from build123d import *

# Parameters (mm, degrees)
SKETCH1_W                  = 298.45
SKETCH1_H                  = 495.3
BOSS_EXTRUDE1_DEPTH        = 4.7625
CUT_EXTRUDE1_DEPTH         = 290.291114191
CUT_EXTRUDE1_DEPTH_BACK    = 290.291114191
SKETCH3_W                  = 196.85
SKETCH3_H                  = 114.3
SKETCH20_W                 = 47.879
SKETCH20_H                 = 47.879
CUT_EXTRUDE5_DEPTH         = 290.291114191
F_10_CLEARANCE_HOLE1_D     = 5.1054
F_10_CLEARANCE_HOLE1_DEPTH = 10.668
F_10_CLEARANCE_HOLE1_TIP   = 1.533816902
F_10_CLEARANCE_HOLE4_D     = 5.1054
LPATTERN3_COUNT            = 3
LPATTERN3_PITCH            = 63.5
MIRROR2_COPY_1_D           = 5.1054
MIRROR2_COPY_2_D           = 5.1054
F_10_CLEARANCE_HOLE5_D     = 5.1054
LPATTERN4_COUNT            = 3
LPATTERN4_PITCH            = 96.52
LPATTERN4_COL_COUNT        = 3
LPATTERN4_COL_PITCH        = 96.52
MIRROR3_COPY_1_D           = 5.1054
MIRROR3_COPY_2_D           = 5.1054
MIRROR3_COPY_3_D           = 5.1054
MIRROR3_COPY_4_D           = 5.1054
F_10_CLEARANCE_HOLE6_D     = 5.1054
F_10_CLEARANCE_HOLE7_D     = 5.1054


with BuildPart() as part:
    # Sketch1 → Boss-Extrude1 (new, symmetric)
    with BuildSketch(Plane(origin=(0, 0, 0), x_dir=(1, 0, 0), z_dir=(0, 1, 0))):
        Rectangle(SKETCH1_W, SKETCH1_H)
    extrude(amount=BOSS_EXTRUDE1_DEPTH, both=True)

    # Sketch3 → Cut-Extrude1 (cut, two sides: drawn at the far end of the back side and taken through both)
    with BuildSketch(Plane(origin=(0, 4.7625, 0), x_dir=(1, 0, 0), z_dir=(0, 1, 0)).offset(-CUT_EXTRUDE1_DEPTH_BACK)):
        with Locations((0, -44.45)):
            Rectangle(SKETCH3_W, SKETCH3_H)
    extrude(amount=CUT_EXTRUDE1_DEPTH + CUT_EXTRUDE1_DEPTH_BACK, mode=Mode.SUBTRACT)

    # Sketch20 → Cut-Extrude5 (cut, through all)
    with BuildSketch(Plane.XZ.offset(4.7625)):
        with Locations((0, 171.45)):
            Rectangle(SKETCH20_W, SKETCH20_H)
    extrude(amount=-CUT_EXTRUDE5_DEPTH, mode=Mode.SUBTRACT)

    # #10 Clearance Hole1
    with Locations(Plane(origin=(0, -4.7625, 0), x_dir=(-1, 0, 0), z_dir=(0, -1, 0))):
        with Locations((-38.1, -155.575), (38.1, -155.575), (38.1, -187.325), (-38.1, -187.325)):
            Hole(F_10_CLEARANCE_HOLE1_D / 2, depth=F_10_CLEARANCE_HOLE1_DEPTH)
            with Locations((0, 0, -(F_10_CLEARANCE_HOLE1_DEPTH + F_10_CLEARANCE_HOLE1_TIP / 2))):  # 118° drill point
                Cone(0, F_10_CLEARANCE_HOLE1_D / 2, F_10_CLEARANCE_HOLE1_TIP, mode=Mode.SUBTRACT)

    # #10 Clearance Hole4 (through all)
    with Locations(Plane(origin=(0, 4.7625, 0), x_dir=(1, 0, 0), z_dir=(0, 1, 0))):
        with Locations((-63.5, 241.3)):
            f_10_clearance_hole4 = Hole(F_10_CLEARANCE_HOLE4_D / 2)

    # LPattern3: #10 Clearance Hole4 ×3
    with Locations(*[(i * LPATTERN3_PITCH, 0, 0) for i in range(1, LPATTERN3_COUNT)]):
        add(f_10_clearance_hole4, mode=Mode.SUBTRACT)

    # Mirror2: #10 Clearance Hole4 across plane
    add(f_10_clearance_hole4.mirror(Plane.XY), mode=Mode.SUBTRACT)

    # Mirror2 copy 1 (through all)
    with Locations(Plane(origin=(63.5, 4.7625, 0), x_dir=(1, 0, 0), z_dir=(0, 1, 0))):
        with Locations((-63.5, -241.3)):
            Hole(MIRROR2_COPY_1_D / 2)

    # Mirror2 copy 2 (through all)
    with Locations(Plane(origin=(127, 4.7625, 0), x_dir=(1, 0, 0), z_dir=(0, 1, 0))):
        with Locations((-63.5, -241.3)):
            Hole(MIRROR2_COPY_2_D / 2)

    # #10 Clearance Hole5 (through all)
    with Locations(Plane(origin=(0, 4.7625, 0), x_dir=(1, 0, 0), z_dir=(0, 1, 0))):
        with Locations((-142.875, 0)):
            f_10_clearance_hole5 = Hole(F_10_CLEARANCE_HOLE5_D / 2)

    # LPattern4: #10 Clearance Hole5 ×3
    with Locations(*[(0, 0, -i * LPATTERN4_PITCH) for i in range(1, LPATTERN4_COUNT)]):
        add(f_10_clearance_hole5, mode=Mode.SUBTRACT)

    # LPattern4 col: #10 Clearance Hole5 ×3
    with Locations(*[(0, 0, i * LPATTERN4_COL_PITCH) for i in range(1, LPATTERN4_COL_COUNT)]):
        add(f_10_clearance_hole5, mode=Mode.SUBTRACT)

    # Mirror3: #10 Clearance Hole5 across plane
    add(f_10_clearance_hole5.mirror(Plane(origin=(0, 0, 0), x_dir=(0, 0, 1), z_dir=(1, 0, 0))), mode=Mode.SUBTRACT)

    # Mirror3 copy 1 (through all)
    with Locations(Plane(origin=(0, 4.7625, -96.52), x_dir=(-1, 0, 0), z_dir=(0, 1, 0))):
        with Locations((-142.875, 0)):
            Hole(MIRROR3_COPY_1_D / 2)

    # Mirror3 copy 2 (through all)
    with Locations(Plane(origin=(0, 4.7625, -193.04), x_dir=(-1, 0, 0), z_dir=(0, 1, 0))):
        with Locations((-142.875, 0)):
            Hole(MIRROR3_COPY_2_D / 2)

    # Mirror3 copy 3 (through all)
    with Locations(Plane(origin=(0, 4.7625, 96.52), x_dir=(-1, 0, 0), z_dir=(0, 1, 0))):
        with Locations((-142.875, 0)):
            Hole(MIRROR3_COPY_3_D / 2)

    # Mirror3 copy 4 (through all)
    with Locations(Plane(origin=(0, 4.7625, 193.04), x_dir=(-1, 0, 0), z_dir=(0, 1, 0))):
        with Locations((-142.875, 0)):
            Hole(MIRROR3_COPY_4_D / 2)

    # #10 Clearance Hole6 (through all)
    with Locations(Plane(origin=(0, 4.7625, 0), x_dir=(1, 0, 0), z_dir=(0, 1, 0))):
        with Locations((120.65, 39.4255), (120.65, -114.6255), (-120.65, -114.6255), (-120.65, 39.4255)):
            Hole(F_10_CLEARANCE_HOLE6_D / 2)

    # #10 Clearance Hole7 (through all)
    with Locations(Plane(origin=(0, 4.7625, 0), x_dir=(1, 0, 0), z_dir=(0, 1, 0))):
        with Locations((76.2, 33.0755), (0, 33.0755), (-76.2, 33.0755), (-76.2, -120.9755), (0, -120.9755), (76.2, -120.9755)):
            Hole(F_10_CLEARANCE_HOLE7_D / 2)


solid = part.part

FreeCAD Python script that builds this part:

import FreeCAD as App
import Part
import Sketcher
from FreeCAD import Vector
Q = App.Units.Quantity


def add_polygon(sketch, points):
    """Adds a closed chain of lines whose ends are joined by coincident constraints."""
    first, n = sketch.GeometryCount, len(points)
    for a, b in zip(points, points[1:] + points[:1]):
        sketch.addGeometry(Part.LineSegment(App.Vector(*a, 0), App.Vector(*b, 0)), False)
    for i in range(n):
        sketch.addConstraint(Sketcher.Constraint("Coincident", first + i, 2, first + (i + 1) % n, 1))

doc = App.newDocument("Part")
body = doc.addObject("PartDesign::Body", "Body")

sketch1 = body.newObject("Sketcher::SketchObject", "Sketch")
sketch1.AttachmentSupport = (doc.getObject("XZ_Plane"), [""])
sketch1.MapMode = "FlatFace"
add_polygon(sketch1, [(-149, -248), (-149, 248), (149, 248), (149, -248)])
sketch1.addConstraint([
    Sketcher.Constraint("Vertical", 0),
    Sketcher.Constraint("Horizontal", 1),
    Sketcher.Constraint("Vertical", 2),
    Sketcher.Constraint("Horizontal", 3),
    Sketcher.Constraint("Symmetric", 0, 2, 2, 2, -1, 1),
    Sketcher.Constraint("DistanceY", 0, 1, 0, 2, Q("19.5 in")),
    Sketcher.Constraint("DistanceX", 1, 1, 1, 2, Q("11.75 in")),
])
pad1 = body.newObject("PartDesign::Pad", "Pad")
pad1.Profile = sketch1
pad1.Length = Q("0.375 in")
pad1.Midplane = True

sketch2 = body.newObject("Sketcher::SketchObject", "Sketch001")
sketch2.AttachmentSupport = (doc.getObject("XZ_Plane"), [""])
sketch2.MapMode = "FlatFace"
sketch2.AttachmentOffset = App.Placement(Vector(0, 0, -0.1875 * 25.4), App.Rotation())
add_polygon(sketch2, [(-98, -13), (-98, 102), (98, 102), (98, -13)])
sketch2.addConstraint([
    Sketcher.Constraint("Vertical", 0),
    Sketcher.Constraint("Horizontal", 1),
    Sketcher.Constraint("Vertical", 2),
    Sketcher.Constraint("Horizontal", 3),
    Sketcher.Constraint("DistanceY", 0, 1, 0, 2, Q("4.5 in")),
    Sketcher.Constraint("DistanceY", -1, 1, 0, 2, Q("4 in")),
    Sketcher.Constraint("DistanceX", 1, 1, 1, 2, Q("7.75 in")),
    Sketcher.Constraint("DistanceX", 0, 2, -1, 1, Q("3.875 in")),
])
pocket1 = body.newObject("PartDesign::Pocket", "Pocket")
pocket1.Profile = sketch2
pocket1.Type = "ThroughAll"
pocket1.Midplane = True

sketch3 = body.newObject("Sketcher::SketchObject", "Sketch002")
sketch3.AttachmentSupport = (doc.getObject("XZ_Plane"), [""])
sketch3.MapMode = "FlatFace"
sketch3.AttachmentOffset = App.Placement(Vector(0, 0, 0.1875 * 25.4), App.Rotation())
add_polygon(sketch3, [(-24, 195), (-24, 148), (24, 148), (24, 195)])
sketch3.addConstraint([
    Sketcher.Constraint("Vertical", 0),
    Sketcher.Constraint("Horizontal", 1),
    Sketcher.Constraint("Vertical", 2),
    Sketcher.Constraint("Horizontal", 3),
    Sketcher.Constraint("Equal", 3, 0),
    Sketcher.Constraint("DistanceX", 1, 1, 1, 2, Q("1.885 in")),
    Sketcher.Constraint("DistanceX", 0, 2, -1, 1, Q("0.9425 in")),
    Sketcher.Constraint("DistanceY", -1, 1, 0, 2, Q("5.8075 in")),
])
pocket2 = body.newObject("PartDesign::Pocket", "Pocket001")
pocket2.Profile = sketch3
pocket2.Type = "ThroughAll"

sketch4 = body.newObject("Sketcher::SketchObject", "Sketch003")
sketch4.AttachmentSupport = (doc.getObject("XZ_Plane"), [""])
sketch4.MapMode = "FlatFace"
sketch4.AttachmentOffset = App.Placement(Vector(0, 0, 0.1875 * 25.4), App.Rotation())
sketch4.addGeometry([
    Part.Circle(Vector(38.1, 155.6, 0), Vector(0, 0, 1), 2.6),
    Part.Circle(Vector(-38.1, 155.6, 0), Vector(0, 0, 1), 2.6),
    Part.Circle(Vector(-38.1, 187.3, 0), Vector(0, 0, 1), 2.6),
    Part.Circle(Vector(38.1, 187.3, 0), Vector(0, 0, 1), 2.6),
], False)
sketch4.addConstraint([
    Sketcher.Constraint("Equal", 0, 1),
    Sketcher.Constraint("Equal", 1, 2),
    Sketcher.Constraint("Equal", 2, 3),
    Sketcher.Constraint("Symmetric", 0, 3, 1, 3, -2),
    Sketcher.Constraint("Symmetric", 2, 3, 3, 3, -2),
    Sketcher.Constraint("Vertical", 1, 3, 2, 3),
    Sketcher.Constraint("Diameter", 0, Q("0.201 in")),
    Sketcher.Constraint("DistanceX", 1, 3, 0, 3, Q("3 in")),
    Sketcher.Constraint("DistanceY", 1, 3, 2, 3, Q("1.25 in")),
    Sketcher.Constraint("DistanceY", -1, 1, 0, 3, Q("6.125 in")),
])
doc.recompute()
hole = body.newObject("PartDesign::Hole", "Hole")
hole.Profile = sketch4
hole.ThreadType = "None"
hole.Diameter = Q("0.201 in")
hole.DepthType = "Dimension"
hole.Depth = Q("0.42 in")
hole.DrillPoint = "Angled"
hole.DrillPointAngle = 118

sketch5 = body.newObject("Sketcher::SketchObject", "Sketch004")
sketch5.AttachmentSupport = (doc.getObject("XZ_Plane"), [""])
sketch5.MapMode = "FlatFace"
sketch5.AttachmentOffset = App.Placement(Vector(0, 0, -0.1875 * 25.4), App.Rotation())
sketch5.addGeometry(Part.Circle(Vector(-63.5, -241.3, 0), Vector(0, 0, 1), 2.6), False)
sketch5.addConstraint([
    Sketcher.Constraint("Diameter", 0, Q("0.201 in")),
    Sketcher.Constraint("DistanceX", 0, 3, -1, 1, Q("2.5 in")),
    Sketcher.Constraint("DistanceY", 0, 3, -1, 1, Q("9.5 in")),
])
doc.recompute()
hole2 = body.newObject("PartDesign::Hole", "Hole001")
hole2.Profile = sketch5
hole2.ThreadType = "None"
hole2.Diameter = Q("0.201 in")
hole2.DepthType = "ThroughAll"
hole2.Reversed = True
doc.recompute()

linearpattern = body.newObject("PartDesign::LinearPattern", "LinearPattern")
linearpattern.Originals = [hole2]
linearpattern.Direction = (doc.getObject("X_Axis"), [""])
linearpattern.Mode = "offset"
linearpattern.Offset = Q("2.5 in")
linearpattern.Occurrences = 3
body.Tip = linearpattern
doc.recompute()

mirrored = body.newObject("PartDesign::Mirrored", "Mirrored")
mirrored.Originals = [hole2]
mirrored.MirrorPlane = (doc.getObject("XY_Plane"), [""])
body.Tip = mirrored

sketch6 = body.newObject("Sketcher::SketchObject", "Sketch005")
sketch6.AttachmentSupport = (doc.getObject("XZ_Plane"), [""])
sketch6.MapMode = "FlatFace"
sketch6.AttachmentOffset = App.Placement(Vector(0, 0, -0.1875 * 25.4), App.Rotation())
sketch6.addGeometry(Part.Circle(Vector(0, 241.3, 0), Vector(0, 0, 1), 2.6), False)
sketch6.addConstraint([
    Sketcher.Constraint("PointOnObject", 0, 3, -2),
    Sketcher.Constraint("Diameter", 0, Q("0.201 in")),
    Sketcher.Constraint("DistanceY", -1, 1, 0, 3, Q("9.5 in")),
])
doc.recompute()
hole3 = body.newObject("PartDesign::Hole", "Hole002")
hole3.Profile = sketch6
hole3.ThreadType = "None"
hole3.Diameter = Q("0.201 in")
hole3.DepthType = "ThroughAll"
hole3.Reversed = True

sketch7 = body.newObject("Sketcher::SketchObject", "Sketch006")
sketch7.AttachmentSupport = (doc.getObject("XZ_Plane"), [""])
sketch7.MapMode = "FlatFace"
sketch7.AttachmentOffset = App.Placement(Vector(0, 0, -0.1875 * 25.4), App.Rotation())
sketch7.addGeometry(Part.Circle(Vector(63.5, 241.3, 0), Vector(0, 0, 1), 2.6), False)
sketch7.addConstraint([
    Sketcher.Constraint("Diameter", 0, Q("0.201 in")),
    Sketcher.Constraint("DistanceX", -1, 1, 0, 3, Q("2.5 in")),
    Sketcher.Constraint("DistanceY", -1, 1, 0, 3, Q("9.5 in")),
])
doc.recompute()
hole4 = body.newObject("PartDesign::Hole", "Hole003")
hole4.Profile = sketch7
hole4.ThreadType = "None"
hole4.Diameter = Q("0.201 in")
hole4.DepthType = "ThroughAll"
hole4.Reversed = True

sketch8 = body.newObject("Sketcher::SketchObject", "Sketch007")
sketch8.AttachmentSupport = (doc.getObject("XZ_Plane"), [""])
sketch8.MapMode = "FlatFace"
sketch8.AttachmentOffset = App.Placement(Vector(0, 0, -0.1875 * 25.4), App.Rotation())
sketch8.addGeometry(Part.Circle(Vector(-142.9, 0, 0), Vector(0, 0, 1), 2.6), False)
sketch8.addConstraint([
    Sketcher.Constraint("PointOnObject", 0, 3, -1),
    Sketcher.Constraint("Diameter", 0, Q("0.201 in")),
    Sketcher.Constraint("DistanceX", 0, 3, -1, 1, Q("5.625 in")),
])
doc.recompute()
hole5 = body.newObject("PartDesign::Hole", "Hole004")
hole5.Profile = sketch8
hole5.ThreadType = "None"
hole5.Diameter = Q("0.201 in")
hole5.DepthType = "ThroughAll"
hole5.Reversed = True
doc.recompute()

linearpattern2 = body.newObject("PartDesign::LinearPattern", "LinearPattern001")
linearpattern2.Originals = [hole5]
linearpattern2.Direction = (doc.getObject("Z_Axis"), [""])
linearpattern2.Mode = "offset"
linearpattern2.Offset = Q("3.8 in")
linearpattern2.Occurrences = 3
linearpattern2.Reversed = True
body.Tip = linearpattern2
doc.recompute()

linearpattern3 = body.newObject("PartDesign::LinearPattern", "LinearPattern002")
linearpattern3.Originals = [hole5]
linearpattern3.Direction = (doc.getObject("Z_Axis"), [""])
linearpattern3.Mode = "offset"
linearpattern3.Offset = Q("3.8 in")
linearpattern3.Occurrences = 3
body.Tip = linearpattern3
doc.recompute()

mirrored2 = body.newObject("PartDesign::Mirrored", "Mirrored001")
mirrored2.Originals = [hole5]
mirrored2.MirrorPlane = (doc.getObject("YZ_Plane"), [""])
body.Tip = mirrored2

sketch9 = body.newObject("Sketcher::SketchObject", "Sketch008")
sketch9.AttachmentSupport = (doc.getObject("XZ_Plane"), [""])
sketch9.MapMode = "FlatFace"
sketch9.AttachmentOffset = App.Placement(Vector(0, 0, -0.1875 * 25.4), App.Rotation())
sketch9.addGeometry(Part.Circle(Vector(142.9, -96.5, 0), Vector(0, 0, 1), 2.6), False)
sketch9.addConstraint([
    Sketcher.Constraint("Diameter", 0, Q("0.201 in")),
    Sketcher.Constraint("DistanceY", 0, 3, -1, 1, Q("3.8 in")),
    Sketcher.Constraint("DistanceX", -1, 1, 0, 3, Q("5.625 in")),
])
doc.recompute()
hole6 = body.newObject("PartDesign::Hole", "Hole005")
hole6.Profile = sketch9
hole6.ThreadType = "None"
hole6.Diameter = Q("0.201 in")
hole6.DepthType = "ThroughAll"
hole6.Reversed = True

sketch10 = body.newObject("Sketcher::SketchObject", "Sketch009")
sketch10.AttachmentSupport = (doc.getObject("XZ_Plane"), [""])
sketch10.MapMode = "FlatFace"
sketch10.AttachmentOffset = App.Placement(Vector(0, 0, -0.1875 * 25.4), App.Rotation())
sketch10.addGeometry(Part.Circle(Vector(142.9, -193, 0), Vector(0, 0, 1), 2.6), False)
sketch10.addConstraint([
    Sketcher.Constraint("Diameter", 0, Q("0.201 in")),
    Sketcher.Constraint("DistanceY", 0, 3, -1, 1, Q("7.6 in")),
    Sketcher.Constraint("DistanceX", -1, 1, 0, 3, Q("5.625 in")),
])
doc.recompute()
hole7 = body.newObject("PartDesign::Hole", "Hole006")
hole7.Profile = sketch10
hole7.ThreadType = "None"
hole7.Diameter = Q("0.201 in")
hole7.DepthType = "ThroughAll"
hole7.Reversed = True

sketch11 = body.newObject("Sketcher::SketchObject", "Sketch010")
sketch11.AttachmentSupport = (doc.getObject("XZ_Plane"), [""])
sketch11.MapMode = "FlatFace"
sketch11.AttachmentOffset = App.Placement(Vector(0, 0, -0.1875 * 25.4), App.Rotation())
sketch11.addGeometry(Part.Circle(Vector(142.9, 96.5, 0), Vector(0, 0, 1), 2.6), False)
sketch11.addConstraint([
    Sketcher.Constraint("Diameter", 0, Q("0.201 in")),
    Sketcher.Constraint("DistanceY", -1, 1, 0, 3, Q("3.8 in")),
    Sketcher.Constraint("DistanceX", -1, 1, 0, 3, Q("5.625 in")),
])
doc.recompute()
hole8 = body.newObject("PartDesign::Hole", "Hole007")
hole8.Profile = sketch11
hole8.ThreadType = "None"
hole8.Diameter = Q("0.201 in")
hole8.DepthType = "ThroughAll"
hole8.Reversed = True

sketch12 = body.newObject("Sketcher::SketchObject", "Sketch011")
sketch12.AttachmentSupport = (doc.getObject("XZ_Plane"), [""])
sketch12.MapMode = "FlatFace"
sketch12.AttachmentOffset = App.Placement(Vector(0, 0, -0.1875 * 25.4), App.Rotation())
sketch12.addGeometry(Part.Circle(Vector(142.9, 193, 0), Vector(0, 0, 1), 2.6), False)
sketch12.addConstraint([
    Sketcher.Constraint("Diameter", 0, Q("0.201 in")),
    Sketcher.Constraint("DistanceY", -1, 1, 0, 3, Q("7.6 in")),
    Sketcher.Constraint("DistanceX", -1, 1, 0, 3, Q("5.625 in")),
])
doc.recompute()
hole9 = body.newObject("PartDesign::Hole", "Hole008")
hole9.Profile = sketch12
hole9.ThreadType = "None"
hole9.Diameter = Q("0.201 in")
hole9.DepthType = "ThroughAll"
hole9.Reversed = True

sketch13 = body.newObject("Sketcher::SketchObject", "Sketch012")
sketch13.AttachmentSupport = (doc.getObject("XZ_Plane"), [""])
sketch13.MapMode = "FlatFace"
sketch13.AttachmentOffset = App.Placement(Vector(0, 0, -0.1875 * 25.4), App.Rotation())
sketch13.addGeometry([
    Part.Circle(Vector(120.7, -39.4, 0), Vector(0, 0, 1), 2.6),
    Part.Circle(Vector(120.7, 114.6, 0), Vector(0, 0, 1), 2.6),
    Part.Circle(Vector(-120.7, 114.6, 0), Vector(0, 0, 1), 2.6),
    Part.Circle(Vector(-120.7, -39.4, 0), Vector(0, 0, 1), 2.6),
], False)
sketch13.addConstraint([
    Sketcher.Constraint("Equal", 0, 1),
    Sketcher.Constraint("Equal", 1, 2),
    Sketcher.Constraint("Equal", 2, 3),
    Sketcher.Constraint("Symmetric", 1, 3, 2, 3, -2),
    Sketcher.Constraint("Symmetric", 0, 3, 3, 3, -2),
    Sketcher.Constraint("Vertical", 0, 3, 1, 3),
    Sketcher.Constraint("Diameter", 0, Q("0.201 in")),
    Sketcher.Constraint("DistanceX", 2, 3, 1, 3, Q("9.5 in")),
    Sketcher.Constraint("DistanceY", 0, 3, 1, 3, Q("6.065 in")),
    Sketcher.Constraint("DistanceY", 0, 3, -1, 1, Q("39.4255 mm")),
])
doc.recompute()
hole10 = body.newObject("PartDesign::Hole", "Hole009")
hole10.Profile = sketch13
hole10.ThreadType = "None"
hole10.Diameter = Q("0.201 in")
hole10.DepthType = "ThroughAll"
hole10.Reversed = True

sketch14 = body.newObject("Sketcher::SketchObject", "Sketch013")
sketch14.AttachmentSupport = (doc.getObject("XZ_Plane"), [""])
sketch14.MapMode = "FlatFace"
sketch14.AttachmentOffset = App.Placement(Vector(0, 0, -0.1875 * 25.4), App.Rotation())
sketch14.addGeometry([
    Part.Circle(Vector(76.2, -33.1, 0), Vector(0, 0, 1), 2.6),
    Part.Circle(Vector(0, -33.1, 0), Vector(0, 0, 1), 2.6),
    Part.Circle(Vector(-76.2, -33.1, 0), Vector(0, 0, 1), 2.6),
    Part.Circle(Vector(-76.2, 121, 0), Vector(0, 0, 1), 2.6),
    Part.Circle(Vector(0, 121, 0), Vector(0, 0, 1), 2.6),
    Part.Circle(Vector(76.2, 121, 0), Vector(0, 0, 1), 2.6),
], False)
sketch14.addConstraint([
    Sketcher.Constraint("Equal", 0, 1),
    Sketcher.Constraint("Equal", 1, 2),
    Sketcher.Constraint("Equal", 2, 3),
    Sketcher.Constraint("Equal", 3, 4),
    Sketcher.Constraint("Equal", 4, 5),
    Sketcher.Constraint("Symmetric", 0, 3, 2, 3, -2),
    Sketcher.Constraint("Symmetric", 3, 3, 5, 3, -2),
    Sketcher.Constraint("PointOnObject", 1, 3, -2),
    Sketcher.Constraint("PointOnObject", 4, 3, -2),
    Sketcher.Constraint("Horizontal", 0, 3, 1, 3),
    Sketcher.Constraint("Horizontal", 3, 3, 4, 3),
    Sketcher.Constraint("Vertical", 2, 3, 3, 3),
    Sketcher.Constraint("Diameter", 0, Q("0.201 in")),
    Sketcher.Constraint("DistanceX", -1, 1, 0, 3, Q("3 in")),
    Sketcher.Constraint("DistanceY", 2, 3, 3, 3, Q("6.065 in")),
    Sketcher.Constraint("DistanceY", 0, 3, -1, 1, Q("33.0755 mm")),
])
doc.recompute()
hole11 = body.newObject("PartDesign::Hole", "Hole010")
hole11.Profile = sketch14
hole11.ThreadType = "None"
hole11.Diameter = Q("0.201 in")
hole11.DepthType = "ThroughAll"
hole11.Reversed = True

doc.recompute()
